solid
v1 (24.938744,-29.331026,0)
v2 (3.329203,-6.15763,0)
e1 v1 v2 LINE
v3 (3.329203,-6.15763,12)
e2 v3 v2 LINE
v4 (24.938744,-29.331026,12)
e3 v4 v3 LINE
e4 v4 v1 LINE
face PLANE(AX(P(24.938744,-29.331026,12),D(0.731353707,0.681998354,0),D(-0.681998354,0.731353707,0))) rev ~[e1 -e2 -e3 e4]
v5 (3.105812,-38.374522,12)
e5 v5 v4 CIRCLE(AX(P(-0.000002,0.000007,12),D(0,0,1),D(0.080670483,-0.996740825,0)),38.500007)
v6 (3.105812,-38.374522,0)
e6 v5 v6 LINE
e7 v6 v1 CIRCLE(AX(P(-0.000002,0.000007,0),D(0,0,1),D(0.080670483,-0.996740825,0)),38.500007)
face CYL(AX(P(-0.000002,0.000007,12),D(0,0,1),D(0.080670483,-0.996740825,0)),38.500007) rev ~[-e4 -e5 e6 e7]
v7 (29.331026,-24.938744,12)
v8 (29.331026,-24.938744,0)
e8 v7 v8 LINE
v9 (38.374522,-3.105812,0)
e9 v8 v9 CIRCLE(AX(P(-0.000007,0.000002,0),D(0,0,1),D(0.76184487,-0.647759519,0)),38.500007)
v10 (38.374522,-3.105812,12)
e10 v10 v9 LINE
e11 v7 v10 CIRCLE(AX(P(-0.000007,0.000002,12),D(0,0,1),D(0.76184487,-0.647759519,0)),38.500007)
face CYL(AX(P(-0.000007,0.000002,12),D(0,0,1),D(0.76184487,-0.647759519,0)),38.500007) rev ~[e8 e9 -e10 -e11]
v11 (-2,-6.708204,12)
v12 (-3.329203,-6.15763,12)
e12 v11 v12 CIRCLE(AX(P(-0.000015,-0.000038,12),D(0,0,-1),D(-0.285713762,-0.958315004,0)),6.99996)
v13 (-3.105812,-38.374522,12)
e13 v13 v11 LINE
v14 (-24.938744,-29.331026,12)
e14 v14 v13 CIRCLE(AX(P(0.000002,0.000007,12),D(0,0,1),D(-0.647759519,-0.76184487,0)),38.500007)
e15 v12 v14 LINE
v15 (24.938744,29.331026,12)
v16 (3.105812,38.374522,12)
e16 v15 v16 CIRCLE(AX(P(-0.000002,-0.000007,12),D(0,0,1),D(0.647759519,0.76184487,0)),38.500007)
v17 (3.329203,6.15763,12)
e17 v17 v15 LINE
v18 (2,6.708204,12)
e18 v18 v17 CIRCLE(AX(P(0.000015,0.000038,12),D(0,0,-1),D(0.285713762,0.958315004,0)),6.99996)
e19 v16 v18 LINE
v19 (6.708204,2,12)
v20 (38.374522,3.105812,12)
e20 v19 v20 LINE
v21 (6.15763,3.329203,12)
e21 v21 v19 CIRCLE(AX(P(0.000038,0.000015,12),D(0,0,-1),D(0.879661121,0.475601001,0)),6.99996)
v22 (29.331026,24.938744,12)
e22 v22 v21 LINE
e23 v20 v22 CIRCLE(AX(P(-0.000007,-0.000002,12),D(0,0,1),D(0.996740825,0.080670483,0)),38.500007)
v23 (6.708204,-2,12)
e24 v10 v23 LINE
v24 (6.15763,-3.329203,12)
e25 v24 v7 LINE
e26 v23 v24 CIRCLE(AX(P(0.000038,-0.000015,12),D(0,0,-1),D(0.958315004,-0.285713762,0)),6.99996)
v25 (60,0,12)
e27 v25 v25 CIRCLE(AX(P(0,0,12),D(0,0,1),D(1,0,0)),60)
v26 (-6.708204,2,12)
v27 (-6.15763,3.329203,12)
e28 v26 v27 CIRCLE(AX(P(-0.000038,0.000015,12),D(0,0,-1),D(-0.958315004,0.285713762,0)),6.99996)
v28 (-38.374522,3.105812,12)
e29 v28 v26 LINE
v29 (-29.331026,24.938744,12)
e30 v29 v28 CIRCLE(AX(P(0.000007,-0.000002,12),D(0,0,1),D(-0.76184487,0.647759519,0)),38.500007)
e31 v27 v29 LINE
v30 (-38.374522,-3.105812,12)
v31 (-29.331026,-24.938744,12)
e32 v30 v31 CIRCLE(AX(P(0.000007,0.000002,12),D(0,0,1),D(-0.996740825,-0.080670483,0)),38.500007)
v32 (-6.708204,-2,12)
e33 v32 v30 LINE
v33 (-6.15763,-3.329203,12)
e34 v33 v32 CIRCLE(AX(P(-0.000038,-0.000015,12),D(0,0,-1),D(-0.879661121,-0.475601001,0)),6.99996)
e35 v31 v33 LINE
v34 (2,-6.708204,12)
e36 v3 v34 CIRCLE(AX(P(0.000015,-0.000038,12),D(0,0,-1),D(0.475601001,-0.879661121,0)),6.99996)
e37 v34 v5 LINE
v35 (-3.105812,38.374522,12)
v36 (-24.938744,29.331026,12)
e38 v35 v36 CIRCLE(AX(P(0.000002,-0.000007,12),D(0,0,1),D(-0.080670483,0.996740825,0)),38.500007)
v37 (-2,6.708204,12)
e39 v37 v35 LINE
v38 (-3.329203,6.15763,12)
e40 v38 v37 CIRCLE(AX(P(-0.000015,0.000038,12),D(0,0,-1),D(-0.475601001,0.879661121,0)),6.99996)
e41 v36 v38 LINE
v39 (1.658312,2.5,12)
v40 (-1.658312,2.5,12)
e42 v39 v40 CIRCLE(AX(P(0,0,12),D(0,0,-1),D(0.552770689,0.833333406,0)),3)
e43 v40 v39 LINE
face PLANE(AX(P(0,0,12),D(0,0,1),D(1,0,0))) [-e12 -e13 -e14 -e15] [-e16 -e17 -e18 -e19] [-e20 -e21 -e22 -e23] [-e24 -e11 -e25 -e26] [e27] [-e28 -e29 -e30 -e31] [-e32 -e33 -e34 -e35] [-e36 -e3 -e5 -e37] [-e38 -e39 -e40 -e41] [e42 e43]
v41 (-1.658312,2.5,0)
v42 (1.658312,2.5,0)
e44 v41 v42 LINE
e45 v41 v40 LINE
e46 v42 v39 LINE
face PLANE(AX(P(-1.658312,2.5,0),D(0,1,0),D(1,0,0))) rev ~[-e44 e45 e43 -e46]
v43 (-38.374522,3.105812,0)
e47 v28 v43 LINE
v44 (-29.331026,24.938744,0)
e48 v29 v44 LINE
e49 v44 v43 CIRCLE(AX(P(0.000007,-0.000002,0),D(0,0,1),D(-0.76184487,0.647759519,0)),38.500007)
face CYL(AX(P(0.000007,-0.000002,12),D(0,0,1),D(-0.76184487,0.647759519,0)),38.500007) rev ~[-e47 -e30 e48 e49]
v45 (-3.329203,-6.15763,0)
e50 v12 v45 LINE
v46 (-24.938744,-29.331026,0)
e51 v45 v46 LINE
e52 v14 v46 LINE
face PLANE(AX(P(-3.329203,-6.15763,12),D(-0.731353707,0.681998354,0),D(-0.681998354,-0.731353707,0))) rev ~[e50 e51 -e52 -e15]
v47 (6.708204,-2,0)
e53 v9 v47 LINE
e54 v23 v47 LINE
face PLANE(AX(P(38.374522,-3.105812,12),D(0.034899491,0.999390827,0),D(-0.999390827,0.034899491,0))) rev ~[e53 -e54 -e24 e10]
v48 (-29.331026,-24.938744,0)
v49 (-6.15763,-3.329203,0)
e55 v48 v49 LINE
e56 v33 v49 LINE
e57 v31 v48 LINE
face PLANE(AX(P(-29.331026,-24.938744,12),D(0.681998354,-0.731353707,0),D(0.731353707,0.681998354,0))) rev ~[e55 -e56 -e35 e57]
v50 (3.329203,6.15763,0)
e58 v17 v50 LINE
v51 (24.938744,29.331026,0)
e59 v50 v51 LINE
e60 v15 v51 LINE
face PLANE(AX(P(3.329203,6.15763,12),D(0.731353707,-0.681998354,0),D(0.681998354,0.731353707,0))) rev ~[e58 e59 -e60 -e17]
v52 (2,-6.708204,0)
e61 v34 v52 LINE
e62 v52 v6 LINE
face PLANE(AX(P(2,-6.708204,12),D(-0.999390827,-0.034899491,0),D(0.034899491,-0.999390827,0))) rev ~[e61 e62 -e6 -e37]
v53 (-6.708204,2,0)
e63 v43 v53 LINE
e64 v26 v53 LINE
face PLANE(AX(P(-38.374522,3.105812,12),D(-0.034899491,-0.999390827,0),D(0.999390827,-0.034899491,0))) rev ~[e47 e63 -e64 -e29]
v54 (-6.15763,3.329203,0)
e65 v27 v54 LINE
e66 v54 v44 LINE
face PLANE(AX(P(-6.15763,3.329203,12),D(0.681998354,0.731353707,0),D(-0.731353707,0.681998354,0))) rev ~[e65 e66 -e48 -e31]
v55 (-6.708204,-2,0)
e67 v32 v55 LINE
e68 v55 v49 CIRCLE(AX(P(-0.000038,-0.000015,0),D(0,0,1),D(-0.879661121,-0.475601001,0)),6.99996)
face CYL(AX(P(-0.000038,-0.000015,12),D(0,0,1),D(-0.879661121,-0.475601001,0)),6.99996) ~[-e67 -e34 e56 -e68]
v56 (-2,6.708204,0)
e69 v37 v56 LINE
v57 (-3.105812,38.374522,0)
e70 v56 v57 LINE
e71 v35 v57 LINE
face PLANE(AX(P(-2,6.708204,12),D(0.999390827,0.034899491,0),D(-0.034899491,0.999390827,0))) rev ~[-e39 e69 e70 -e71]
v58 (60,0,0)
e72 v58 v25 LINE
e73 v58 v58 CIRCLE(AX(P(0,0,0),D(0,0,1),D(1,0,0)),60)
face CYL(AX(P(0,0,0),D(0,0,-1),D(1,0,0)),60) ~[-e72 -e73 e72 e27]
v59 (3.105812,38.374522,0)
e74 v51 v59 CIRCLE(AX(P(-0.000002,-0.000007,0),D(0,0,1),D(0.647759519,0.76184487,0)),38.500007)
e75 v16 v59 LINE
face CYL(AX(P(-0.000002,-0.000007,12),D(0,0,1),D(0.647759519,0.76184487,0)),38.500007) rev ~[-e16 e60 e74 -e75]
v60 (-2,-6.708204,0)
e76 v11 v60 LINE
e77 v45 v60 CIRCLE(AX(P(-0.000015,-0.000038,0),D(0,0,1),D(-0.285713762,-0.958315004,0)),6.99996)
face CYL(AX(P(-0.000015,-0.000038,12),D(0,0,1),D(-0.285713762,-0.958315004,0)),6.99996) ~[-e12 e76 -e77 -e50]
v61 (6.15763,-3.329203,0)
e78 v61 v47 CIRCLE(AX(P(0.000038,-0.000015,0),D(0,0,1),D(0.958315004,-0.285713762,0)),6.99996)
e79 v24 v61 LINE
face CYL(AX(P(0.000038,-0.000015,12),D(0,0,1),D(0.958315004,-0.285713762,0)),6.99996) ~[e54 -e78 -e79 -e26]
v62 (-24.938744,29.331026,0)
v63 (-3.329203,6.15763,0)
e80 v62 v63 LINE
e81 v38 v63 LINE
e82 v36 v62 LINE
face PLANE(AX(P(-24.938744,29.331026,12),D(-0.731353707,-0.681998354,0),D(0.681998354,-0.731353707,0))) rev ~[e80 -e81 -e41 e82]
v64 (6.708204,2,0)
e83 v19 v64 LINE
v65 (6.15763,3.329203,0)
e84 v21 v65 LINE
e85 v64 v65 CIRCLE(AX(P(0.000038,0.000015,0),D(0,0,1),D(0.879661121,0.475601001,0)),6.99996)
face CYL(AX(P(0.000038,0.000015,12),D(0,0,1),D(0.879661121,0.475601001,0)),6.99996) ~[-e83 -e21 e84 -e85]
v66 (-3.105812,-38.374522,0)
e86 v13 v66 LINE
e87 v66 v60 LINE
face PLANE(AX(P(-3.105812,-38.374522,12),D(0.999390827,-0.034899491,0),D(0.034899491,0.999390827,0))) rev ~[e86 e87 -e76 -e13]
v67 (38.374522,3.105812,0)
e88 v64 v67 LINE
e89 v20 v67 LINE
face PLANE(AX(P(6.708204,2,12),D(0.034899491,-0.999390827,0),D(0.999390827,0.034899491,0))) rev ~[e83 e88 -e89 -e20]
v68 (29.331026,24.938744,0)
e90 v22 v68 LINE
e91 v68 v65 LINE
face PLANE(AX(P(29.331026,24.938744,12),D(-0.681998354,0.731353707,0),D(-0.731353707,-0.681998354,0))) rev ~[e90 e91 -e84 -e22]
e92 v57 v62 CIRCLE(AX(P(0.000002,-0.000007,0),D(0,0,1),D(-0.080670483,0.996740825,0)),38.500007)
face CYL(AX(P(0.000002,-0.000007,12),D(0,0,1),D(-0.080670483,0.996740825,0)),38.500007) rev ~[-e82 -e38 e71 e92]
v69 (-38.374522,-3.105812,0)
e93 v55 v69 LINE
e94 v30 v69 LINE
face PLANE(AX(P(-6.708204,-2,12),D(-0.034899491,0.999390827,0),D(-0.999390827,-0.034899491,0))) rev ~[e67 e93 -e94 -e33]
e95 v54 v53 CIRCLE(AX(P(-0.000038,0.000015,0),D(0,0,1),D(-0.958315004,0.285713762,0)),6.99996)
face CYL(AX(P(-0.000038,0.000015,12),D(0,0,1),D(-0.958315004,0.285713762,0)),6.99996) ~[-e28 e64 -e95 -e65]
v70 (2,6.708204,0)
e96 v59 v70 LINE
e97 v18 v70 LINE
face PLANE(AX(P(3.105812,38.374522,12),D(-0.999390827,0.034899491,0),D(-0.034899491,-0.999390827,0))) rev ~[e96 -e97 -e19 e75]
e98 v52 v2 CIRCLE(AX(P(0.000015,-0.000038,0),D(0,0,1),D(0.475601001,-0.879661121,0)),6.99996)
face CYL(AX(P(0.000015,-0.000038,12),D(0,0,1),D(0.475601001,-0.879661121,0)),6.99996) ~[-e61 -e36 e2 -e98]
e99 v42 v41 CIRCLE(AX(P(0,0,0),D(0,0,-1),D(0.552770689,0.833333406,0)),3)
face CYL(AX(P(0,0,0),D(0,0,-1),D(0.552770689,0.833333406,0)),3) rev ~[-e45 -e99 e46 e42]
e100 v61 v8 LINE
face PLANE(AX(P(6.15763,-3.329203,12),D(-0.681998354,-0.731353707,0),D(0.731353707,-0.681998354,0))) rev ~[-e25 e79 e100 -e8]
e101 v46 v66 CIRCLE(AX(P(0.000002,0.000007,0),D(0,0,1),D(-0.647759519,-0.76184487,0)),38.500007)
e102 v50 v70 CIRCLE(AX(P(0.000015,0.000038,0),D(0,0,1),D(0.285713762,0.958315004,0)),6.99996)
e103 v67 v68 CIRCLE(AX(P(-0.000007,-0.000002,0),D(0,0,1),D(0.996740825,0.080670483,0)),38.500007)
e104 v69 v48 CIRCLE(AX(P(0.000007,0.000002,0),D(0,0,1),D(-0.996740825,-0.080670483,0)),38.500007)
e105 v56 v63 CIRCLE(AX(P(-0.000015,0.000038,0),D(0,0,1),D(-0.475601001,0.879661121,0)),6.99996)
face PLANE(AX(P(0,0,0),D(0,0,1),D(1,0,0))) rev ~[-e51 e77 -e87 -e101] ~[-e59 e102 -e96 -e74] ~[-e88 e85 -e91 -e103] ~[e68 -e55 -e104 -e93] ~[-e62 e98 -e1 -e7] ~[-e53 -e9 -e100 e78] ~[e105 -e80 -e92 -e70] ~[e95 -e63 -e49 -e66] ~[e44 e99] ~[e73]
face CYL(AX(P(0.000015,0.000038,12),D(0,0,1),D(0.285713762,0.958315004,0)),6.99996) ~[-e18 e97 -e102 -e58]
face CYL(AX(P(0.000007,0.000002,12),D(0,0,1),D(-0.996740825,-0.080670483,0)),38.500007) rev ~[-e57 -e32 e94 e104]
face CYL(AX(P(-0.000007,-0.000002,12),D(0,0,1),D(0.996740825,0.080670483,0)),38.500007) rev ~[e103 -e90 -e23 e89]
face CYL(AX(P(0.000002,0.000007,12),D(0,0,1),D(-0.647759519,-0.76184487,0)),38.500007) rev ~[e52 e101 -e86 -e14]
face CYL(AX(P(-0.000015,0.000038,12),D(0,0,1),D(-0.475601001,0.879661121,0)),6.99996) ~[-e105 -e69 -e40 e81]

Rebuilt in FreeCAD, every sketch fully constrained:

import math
import FreeCAD as App
import Part
import Sketcher
from FreeCAD import Vector
Q = App.Units.Quantity

doc = App.newDocument("Part")
params = doc.addObject("Spreadsheet::Sheet", "Params")
for row, (alias, value) in enumerate([
    ("sketch1_diameter", "120 mm"),
    ("sketch1_radius", "3 mm"),
    ("pad1_length", "12 mm"),
    ("pocket1_length", "25 mm"),
], start=1):
    params.set(f"A{row}", alias)
    params.set(f"B{row}", "=" + value)
    params.setAlias(f"B{row}", alias)

body = doc.addObject("PartDesign::Body", "Body")

# Sketch on XY plane
sketch1 = body.newObject("Sketcher::SketchObject", "Sketch")
sketch1.AttachmentSupport = (doc.getObject("XY_Plane"), [""])
sketch1.MapMode = "FlatFace"
sketch1.addGeometry([
    Part.Circle(Vector(0, 0, 0), Vector(0, 0, 1), 60),
    Part.LineSegment(Vector(-1.7, 2.5, 0), Vector(1.7, 2.5, 0)),
    Part.ArcOfCircle(Part.Circle(Vector(0, 0, 0), Vector(0, 0, 1), 3), math.radians(124), math.radians(416)),
], False)
sketch1.addConstraint([
    Sketcher.Constraint("Coincident", 1, 1, 2, 1),
    Sketcher.Constraint("Coincident", 2, 2, 1, 2),
    Sketcher.Constraint("Horizontal", 1),
    Sketcher.Constraint("Coincident", 0, 3, -1, 1),
    Sketcher.Constraint("Coincident", 2, 3, -1, 1),
    Sketcher.Constraint("Diameter", 0, 120.0),
    Sketcher.Constraint("Radius", 2, 3.0),
    Sketcher.Constraint("DistanceY", -1, 1, 1, 1, 2.5),
])
sketch1.setExpression("Constraints[5]", "Params.sketch1_diameter")
sketch1.setExpression("Constraints[6]", "Params.sketch1_radius")
pad1 = body.newObject("PartDesign::Pad", "Pad")
pad1.Profile = sketch1
pad1.setExpression("Length", "Params.pad1_length")

# Sketch on XY plane
sketch2 = body.newObject("Sketcher::SketchObject", "Sketch001")
sketch2.AttachmentSupport = (doc.getObject("XY_Plane"), [""])
sketch2.MapMode = "FlatFace"
sketch2.AttachmentOffset = App.Placement(Vector(0, 0, 12), App.Rotation())
sketch2.addGeometry([
    Part.ArcOfCircle(Part.Circle(Vector(-0.000015, 0.000038, 0), Vector(0, 0, 1), 6.99996), math.radians(106.601518), math.radians(118.398488)),  # 0
    Part.LineSegment(Vector(-2, 6.708204, 0), Vector(-3.105812, 38.374522, 0)),  # 1
    Part.ArcOfCircle(Part.Circle(Vector(0.000002, -0.000007, 0), Vector(0, 0, 1), 38.500007), math.radians(94.627106), math.radians(130.372891)),  # 2
    Part.LineSegment(Vector(-24.938744, 29.331026, 0), Vector(-3.329203, 6.15763, 0)),  # 3
    Part.LineSegment(Vector(3.105812, 38.374522, 0), Vector(2, 6.708204, 0)),  # 4
    Part.ArcOfCircle(Part.Circle(Vector(0.000015, 0.000038, 0), Vector(0, 0, 1), 6.99996), math.radians(61.601512), math.radians(73.398482)),  # 5
    Part.LineSegment(Vector(3.329203, 6.15763, 0), Vector(24.938744, 29.331026, 0)),  # 6
    Part.ArcOfCircle(Part.Circle(Vector(-0.000002, -0.000007, 0), Vector(0, 0, 1), 38.500007), math.radians(49.627109), math.radians(85.372894)),  # 7
    Part.LineSegment(Vector(29.331026, 24.938744, 0), Vector(6.15763, 3.329203, 0)),  # 8
    Part.ArcOfCircle(Part.Circle(Vector(0.000038, 0.000015, 0), Vector(0, 0, 1), 6.99996), math.radians(16.601518), math.radians(28.398488)),  # 9
    Part.LineSegment(Vector(6.708204, 2, 0), Vector(38.374522, 3.105812, 0)),  # 10
    Part.ArcOfCircle(Part.Circle(Vector(-0.000007, -0.000002, 0), Vector(0, 0, 1), 38.500007), math.radians(4.627106), math.radians(40.372891)),  # 11
    Part.LineSegment(Vector(38.374522, -3.105812, 0), Vector(6.708204, -2, 0)),  # 12
    Part.ArcOfCircle(Part.Circle(Vector(0.000038, -0.000015, 0), Vector(0, 0, 1), 6.99996), math.radians(-28.398488), math.radians(-16.601518)),  # 13
    Part.LineSegment(Vector(6.15763, -3.329203, 0), Vector(29.331026, -24.938744, 0)),  # 14
    Part.ArcOfCircle(Part.Circle(Vector(-0.000007, 0.000002, 0), Vector(0, 0, 1), 38.500007), math.radians(-40.372891), math.radians(-4.627106)),  # 15
    Part.LineSegment(Vector(24.938744, -29.331026, 0), Vector(3.329203, -6.15763, 0)),  # 16
    Part.ArcOfCircle(Part.Circle(Vector(0.000015, -0.000038, 0), Vector(0, 0, 1), 6.99996), math.radians(-73.398482), math.radians(-61.601512)),  # 17
    Part.LineSegment(Vector(2, -6.708204, 0), Vector(3.105812, -38.374522, 0)),  # 18
    Part.ArcOfCircle(Part.Circle(Vector(-0.000002, 0.000007, 0), Vector(0, 0, 1), 38.500007), math.radians(-85.372894), math.radians(-49.627109)),  # 19
    Part.ArcOfCircle(Part.Circle(Vector(-0.000038, 0.000015, 0), Vector(0, 0, 1), 6.99996), math.radians(151.601512), math.radians(163.398482)),  # 20
    Part.LineSegment(Vector(-6.15763, 3.329203, 0), Vector(-29.331026, 24.938744, 0)),  # 21
    Part.ArcOfCircle(Part.Circle(Vector(0.000007, -0.000002, 0), Vector(0, 0, 1), 38.500007), math.radians(139.627109), math.radians(175.372894)),  # 22
    Part.LineSegment(Vector(-38.374522, 3.105812, 0), Vector(-6.708204, 2, 0)),  # 23
    Part.LineSegment(Vector(-3.105812, -38.374522, 0), Vector(-2, -6.708204, 0)),  # 24
    Part.ArcOfCircle(Part.Circle(Vector(-0.000015, -0.000038, 0), Vector(0, 0, 1), 6.99996), math.radians(-118.398488), math.radians(-106.601518)),  # 25
    Part.LineSegment(Vector(-3.329203, -6.15763, 0), Vector(-24.938744, -29.331026, 0)),  # 26
    Part.ArcOfCircle(Part.Circle(Vector(0.000002, 0.000007, 0), Vector(0, 0, 1), 38.500007), math.radians(-130.372891), math.radians(-94.627106)),  # 27
    Part.LineSegment(Vector(-29.331026, -24.938744, 0), Vector(-6.15763, -3.329203, 0)),  # 28
    Part.ArcOfCircle(Part.Circle(Vector(-0.000038, -0.000015, 0), Vector(0, 0, 1), 6.99996), math.radians(-163.398482), math.radians(-151.601512)),  # 29
    Part.LineSegment(Vector(-6.708204, -2, 0), Vector(-38.374522, -3.105812, 0)),  # 30
    Part.ArcOfCircle(Part.Circle(Vector(0.000007, 0.000002, 0), Vector(0, 0, 1), 38.500007), math.radians(-175.372894), math.radians(-139.627109)),  # 31
], False)
sketch2.addConstraint([
    Sketcher.Constraint("Coincident", 0, 1, 1, 1),
    Sketcher.Constraint("Coincident", 1, 2, 2, 1),
    Sketcher.Constraint("Coincident", 2, 2, 3, 1),
    Sketcher.Constraint("Coincident", 3, 2, 0, 2),
    Sketcher.Constraint("Coincident", 4, 2, 5, 2),
    Sketcher.Constraint("Coincident", 5, 1, 6, 1),
    Sketcher.Constraint("Coincident", 6, 2, 7, 1),
    Sketcher.Constraint("Coincident", 7, 2, 4, 1),
    Sketcher.Constraint("Coincident", 8, 2, 9, 2),
    Sketcher.Constraint("Coincident", 9, 1, 10, 1),
    Sketcher.Constraint("Coincident", 10, 2, 11, 1),
    Sketcher.Constraint("Coincident", 11, 2, 8, 1),
    Sketcher.Constraint("Coincident", 12, 2, 13, 2),
    Sketcher.Constraint("Coincident", 13, 1, 14, 1),
    Sketcher.Constraint("Coincident", 14, 2, 15, 1),
    Sketcher.Constraint("Coincident", 15, 2, 12, 1),
    Sketcher.Constraint("Coincident", 16, 2, 17, 2),
    Sketcher.Constraint("Coincident", 17, 1, 18, 1),
    Sketcher.Constraint("Coincident", 18, 2, 19, 1),
    Sketcher.Constraint("Coincident", 19, 2, 16, 1),
    Sketcher.Constraint("Coincident", 20, 1, 21, 1),
    Sketcher.Constraint("Coincident", 21, 2, 22, 1),
    Sketcher.Constraint("Coincident", 22, 2, 23, 1),
    Sketcher.Constraint("Coincident", 23, 2, 20, 2),
    Sketcher.Constraint("Coincident", 24, 2, 25, 2),
    Sketcher.Constraint("Coincident", 25, 1, 26, 1),
    Sketcher.Constraint("Coincident", 26, 2, 27, 1),
    Sketcher.Constraint("Coincident", 27, 2, 24, 1),
    Sketcher.Constraint("Coincident", 28, 2, 29, 2),
    Sketcher.Constraint("Coincident", 29, 1, 30, 1),
    Sketcher.Constraint("Coincident", 30, 2, 31, 1),
    Sketcher.Constraint("Coincident", 31, 2, 28, 1),
    Sketcher.Constraint("Coincident", 2, 3, -1, 1),
    Sketcher.Constraint("Coincident", 7, 3, -1, 1),
    Sketcher.Constraint("Coincident", 11, 3, -1, 1),
    Sketcher.Constraint("Coincident", 15, 3, -1, 1),
    Sketcher.Constraint("Coincident", 19, 3, -1, 1),
    Sketcher.Constraint("Coincident", 22, 3, -1, 1),
    Sketcher.Constraint("Coincident", 27, 3, -1, 1),
    Sketcher.Constraint("Coincident", 31, 3, -1, 1),
    Sketcher.Constraint("Equal", 0, 5),
    Sketcher.Constraint("Equal", 2, 7),
    Sketcher.Constraint("Equal", 5, 9),
    Sketcher.Constraint("Equal", 7, 11),
    Sketcher.Constraint("Equal", 9, 13),
    Sketcher.Constraint("Equal", 11, 15),
    Sketcher.Constraint("Equal", 13, 17),
    Sketcher.Constraint("Equal", 15, 19),
    Sketcher.Constraint("Equal", 17, 20),
    Sketcher.Constraint("Equal", 19, 22),
    Sketcher.Constraint("Equal", 20, 25),
    Sketcher.Constraint("Equal", 22, 27),
    Sketcher.Constraint("Equal", 25, 29),
    Sketcher.Constraint("Equal", 27, 31),
    Sketcher.Constraint("Symmetric", 0, 3, 17, 3, -1, 1),
    Sketcher.Constraint("Symmetric", 13, 3, 20, 3, -1, 1),
    Sketcher.Constraint("Symmetric", 5, 3, 25, 3, -1, 1),
    Sketcher.Constraint("Symmetric", 9, 3, 29, 3, -1, 1),
    Sketcher.Constraint("Symmetric", 0, 3, 5, 3, -2),
    Sketcher.Constraint("Symmetric", 9, 3, 20, 3, -2),
    Sketcher.Constraint("Perpendicular", 3, 8),
    Sketcher.Constraint("Perpendicular", 1, 10),
    Sketcher.Constraint("Perpendicular", 4, 12),
    Sketcher.Constraint("Perpendicular", 6, 14),
    Sketcher.Constraint("Perpendicular", 8, 16),
    Sketcher.Constraint("Perpendicular", 10, 18),
    Sketcher.Constraint("Parallel", 14, 21),
    Sketcher.Constraint("Parallel", 12, 23),
    Sketcher.Constraint("Perpendicular", 23, 24),
    Sketcher.Constraint("Perpendicular", 21, 26),
    Sketcher.Constraint("Perpendicular", 16, 28),
    Sketcher.Constraint("Perpendicular", 18, 30),
    Sketcher.Constraint("Horizontal", 0, 1, 4, 2),
    Sketcher.Constraint("Horizontal", 3, 2, 5, 1),
    Sketcher.Constraint("Horizontal", 2, 2, 6, 2),
    Sketcher.Constraint("Horizontal", 1, 2, 7, 2),
    Sketcher.Constraint("Horizontal", 8, 2, 20, 1),
    Sketcher.Constraint("Horizontal", 10, 2, 22, 2),
    Sketcher.Constraint("Horizontal", 17, 1, 24, 2),
    Sketcher.Constraint("Horizontal", 16, 2, 25, 1),
    Sketcher.Constraint("Horizontal", 13, 1, 28, 2),
    Sketcher.Constraint("Horizontal", 12, 2, 29, 1),
    Sketcher.Constraint("Vertical", 9, 1, 12, 2),
    Sketcher.Constraint("Vertical", 8, 2, 13, 1),
    Sketcher.Constraint("Vertical", 5, 1, 16, 2),
    Sketcher.Constraint("Vertical", 4, 2, 17, 1),
    Sketcher.Constraint("Equal", 1, 3),
    Sketcher.Constraint("Equal", 6, 8),
    Sketcher.Constraint("Equal", 8, 10),
    Sketcher.Constraint("Angle", 1, Q("92 deg")),
    Sketcher.Constraint("Angle", 3, Q("-47 deg")),
    Sketcher.Constraint("DistanceX", 0, 1, -1, 1, 2.0),
    Sketcher.Constraint("DistanceY", -1, 1, 9, 1, 2.0),
    Sketcher.Constraint("Radius", 0, 6.99996),
    Sketcher.Constraint("Radius", 2, 38.500007),
    Sketcher.Constraint("DistanceY", 8, 2, 4, 2, 3.379001),
    Sketcher.Constraint("DistanceX", 5, 1, 9, 1, 3.379001),
    Sketcher.Constraint("DistanceX", 3, 2, 19, 3, 3.329201),
])
pocket1 = body.newObject("PartDesign::Pocket", "Pocket")
pocket1.Profile = sketch2
pocket1.setExpression("Length", "Params.pocket1_length")

doc.recompute()
